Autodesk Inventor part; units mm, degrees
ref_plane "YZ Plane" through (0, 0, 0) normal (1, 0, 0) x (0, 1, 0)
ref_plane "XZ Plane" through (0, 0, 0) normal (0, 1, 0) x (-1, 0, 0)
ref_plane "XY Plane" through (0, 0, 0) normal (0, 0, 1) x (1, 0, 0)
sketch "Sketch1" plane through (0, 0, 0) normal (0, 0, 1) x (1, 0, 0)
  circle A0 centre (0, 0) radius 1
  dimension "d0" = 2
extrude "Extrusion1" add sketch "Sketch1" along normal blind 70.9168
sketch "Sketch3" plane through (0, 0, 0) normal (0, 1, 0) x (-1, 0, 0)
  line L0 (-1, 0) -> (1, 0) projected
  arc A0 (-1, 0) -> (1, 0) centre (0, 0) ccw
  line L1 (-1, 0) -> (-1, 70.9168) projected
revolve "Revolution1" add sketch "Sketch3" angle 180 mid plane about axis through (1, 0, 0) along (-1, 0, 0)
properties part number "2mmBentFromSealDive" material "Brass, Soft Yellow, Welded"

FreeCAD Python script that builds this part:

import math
import FreeCAD as App
import Part
import Sketcher

doc = App.newDocument("Part")
body = doc.addObject("PartDesign::Body", "Body")

sketch1 = body.newObject("Sketcher::SketchObject", "Sketch")
sketch1.AttachmentSupport = (doc.getObject("XY_Plane"), [""])
sketch1.MapMode = "FlatFace"
sketch1.addGeometry(Part.Circle(App.Vector(0, 0, 0), App.Vector(0, 0, 1), 1), False)
sketch1.addConstraint([
    Sketcher.Constraint("Coincident", 0, 3, -1, 1),
    Sketcher.Constraint("Diameter", 0, 2.0),
])
pad1 = body.newObject("PartDesign::Pad", "Pad")
pad1.Profile = sketch1
pad1.Length = 70.9168

sketch2 = body.newObject("Sketcher::SketchObject", "Sketch001")
sketch2.AttachmentSupport = (doc.getObject("XZ_Plane"), [""])
sketch2.MapMode = "FlatFace"
sketch2.addGeometry([
    Part.LineSegment(App.Vector(-1, 0, 0), App.Vector(1, 0, 0)),
    Part.ArcOfCircle(Part.Circle(App.Vector(0, 0, 0), App.Vector(0, 0, 1), 1), math.radians(180), math.radians(360)),
], False)
sketch2.addConstraint([
    Sketcher.Constraint("Coincident", 0, 1, 1, 1),
    Sketcher.Constraint("Coincident", 1, 2, 0, 2),
    Sketcher.Constraint("Horizontal", 0),
    Sketcher.Constraint("Coincident", 1, 3, -1, 1),
    Sketcher.Constraint("PointOnObject", 0, 1, -1),
    Sketcher.Constraint("Radius", 1, 1.0),
])
revolution = body.newObject("PartDesign::Revolution", "Revolution")
revolution.Profile = sketch2
revolution.ReferenceAxis = (sketch2, ["H_Axis"])
revolution.Angle = 180
revolution.Midplane = True

doc.recompute()
